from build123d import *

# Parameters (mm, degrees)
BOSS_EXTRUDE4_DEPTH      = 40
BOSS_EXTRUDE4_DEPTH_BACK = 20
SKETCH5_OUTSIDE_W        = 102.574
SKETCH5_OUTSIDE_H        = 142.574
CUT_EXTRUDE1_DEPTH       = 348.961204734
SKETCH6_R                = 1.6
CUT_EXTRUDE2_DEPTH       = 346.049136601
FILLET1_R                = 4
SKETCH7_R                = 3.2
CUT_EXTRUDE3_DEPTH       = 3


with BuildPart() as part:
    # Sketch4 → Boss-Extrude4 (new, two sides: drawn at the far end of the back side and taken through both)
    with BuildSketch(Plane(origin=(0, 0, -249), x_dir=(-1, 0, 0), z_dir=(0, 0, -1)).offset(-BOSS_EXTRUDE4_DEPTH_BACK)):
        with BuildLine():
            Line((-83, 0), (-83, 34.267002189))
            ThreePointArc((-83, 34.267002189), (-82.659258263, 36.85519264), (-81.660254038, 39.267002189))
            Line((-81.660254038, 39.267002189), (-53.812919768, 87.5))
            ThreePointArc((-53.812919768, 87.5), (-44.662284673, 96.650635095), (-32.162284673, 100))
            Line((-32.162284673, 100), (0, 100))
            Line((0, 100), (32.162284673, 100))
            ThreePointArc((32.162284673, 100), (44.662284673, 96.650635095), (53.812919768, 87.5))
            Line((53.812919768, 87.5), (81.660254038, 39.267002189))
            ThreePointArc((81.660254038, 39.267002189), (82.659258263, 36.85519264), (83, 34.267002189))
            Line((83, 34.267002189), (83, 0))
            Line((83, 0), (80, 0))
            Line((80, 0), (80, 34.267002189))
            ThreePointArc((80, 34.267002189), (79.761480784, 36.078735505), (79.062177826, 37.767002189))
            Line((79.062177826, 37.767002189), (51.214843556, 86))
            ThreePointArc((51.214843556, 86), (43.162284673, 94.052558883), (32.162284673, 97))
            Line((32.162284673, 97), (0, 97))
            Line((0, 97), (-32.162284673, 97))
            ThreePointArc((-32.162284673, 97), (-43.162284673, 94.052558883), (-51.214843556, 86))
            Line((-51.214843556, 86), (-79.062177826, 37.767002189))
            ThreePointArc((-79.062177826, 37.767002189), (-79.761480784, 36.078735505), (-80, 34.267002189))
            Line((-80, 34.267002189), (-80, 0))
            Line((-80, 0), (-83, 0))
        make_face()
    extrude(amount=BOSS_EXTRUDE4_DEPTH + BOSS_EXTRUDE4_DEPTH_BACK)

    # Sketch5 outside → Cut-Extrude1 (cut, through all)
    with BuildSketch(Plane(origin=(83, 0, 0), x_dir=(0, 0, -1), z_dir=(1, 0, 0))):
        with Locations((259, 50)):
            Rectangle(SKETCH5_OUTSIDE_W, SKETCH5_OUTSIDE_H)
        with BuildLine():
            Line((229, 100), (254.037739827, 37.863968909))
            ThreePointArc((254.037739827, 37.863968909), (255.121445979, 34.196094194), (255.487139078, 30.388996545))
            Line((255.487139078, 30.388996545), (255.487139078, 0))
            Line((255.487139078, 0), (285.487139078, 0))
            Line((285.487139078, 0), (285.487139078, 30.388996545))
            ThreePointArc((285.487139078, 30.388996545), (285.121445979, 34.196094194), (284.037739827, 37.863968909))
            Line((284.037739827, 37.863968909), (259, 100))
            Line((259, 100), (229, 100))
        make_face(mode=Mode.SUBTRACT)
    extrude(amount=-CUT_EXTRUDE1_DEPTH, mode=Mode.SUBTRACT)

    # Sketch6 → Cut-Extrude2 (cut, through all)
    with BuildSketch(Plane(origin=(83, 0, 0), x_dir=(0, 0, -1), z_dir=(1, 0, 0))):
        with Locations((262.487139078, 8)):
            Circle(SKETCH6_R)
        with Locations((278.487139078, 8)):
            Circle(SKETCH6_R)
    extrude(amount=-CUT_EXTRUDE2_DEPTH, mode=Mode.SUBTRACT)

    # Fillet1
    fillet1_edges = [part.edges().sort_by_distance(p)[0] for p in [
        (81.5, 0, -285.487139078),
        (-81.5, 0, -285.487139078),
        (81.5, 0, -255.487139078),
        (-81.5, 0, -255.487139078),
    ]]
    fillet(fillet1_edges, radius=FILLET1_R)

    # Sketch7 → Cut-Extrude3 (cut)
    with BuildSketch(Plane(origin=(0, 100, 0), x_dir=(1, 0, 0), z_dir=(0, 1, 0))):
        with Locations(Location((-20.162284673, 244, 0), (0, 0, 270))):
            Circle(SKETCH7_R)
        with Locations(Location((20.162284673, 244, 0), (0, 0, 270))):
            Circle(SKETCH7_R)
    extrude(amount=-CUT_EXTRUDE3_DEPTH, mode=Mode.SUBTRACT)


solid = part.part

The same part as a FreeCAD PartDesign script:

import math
import FreeCAD as App
import Part
import Sketcher

V = App.Vector
Q = App.Units.Quantity


def edges_at(feature, points):
    """Names of the edges that pass closest to the given points."""
    edges = feature.Shape.Edges
    near = lambda p: min(range(len(edges)), key=lambda i: edges[i].distToShape(Part.Vertex(*p))[0])
    return sorted({f"Edge{near(p) + 1}" for p in points})


def add_polygon(sketch, points):
    """Adds a closed chain of lines whose ends are joined by coincident constraints."""
    first, n = sketch.GeometryCount, len(points)
    for a, b in zip(points, points[1:] + points[:1]):
        sketch.addGeometry(Part.LineSegment(App.Vector(*a, 0), App.Vector(*b, 0)), False)
    for i in range(n):
        sketch.addConstraint(Sketcher.Constraint("Coincident", first + i, 2, first + (i + 1) % n, 1))

doc = App.newDocument("Part")
body = doc.addObject("PartDesign::Body", "Body")

# Sketch on XY plane
sketch1 = doc.addObject("Sketcher::SketchObject", "Sketch")
body.addObject(sketch1)
sketch1.AttachmentSupport = (doc.XY_Plane, [""])
sketch1.MapMode = "FlatFace"
sketch1.AttachmentOffset = App.Placement(V(0, 0, -249), App.Rotation())
sketch1.addGeometry([
    Part.LineSegment(V(83, 34.3, 0), V(83, 0, 0)),  # 0
    Part.LineSegment(V(83, 0, 0), V(80, 0, 0)),  # 1
    Part.LineSegment(V(80, 0, 0), V(80, 34.3, 0)),  # 2
    Part.ArcOfCircle(Part.Circle(V(73, 34.3, 0), V(0, 0, 1), 7), math.radians(0), math.radians(30)),  # 3
    Part.LineSegment(V(79.1, 37.8, 0), V(51.2, 86, 0)),  # 4
    Part.ArcOfCircle(Part.Circle(V(32.2, 75, 0), V(0, 0, 1), 22), math.radians(30), math.radians(90)),  # 5
    Part.LineSegment(V(32.2, 97, 0), V(-32.2, 97, 0)),  # 6
    Part.ArcOfCircle(Part.Circle(V(-32.2, 75, 0), V(0, 0, 1), 22), math.radians(90), math.radians(150)),  # 7
    Part.LineSegment(V(-51.2, 86, 0), V(-79.1, 37.8, 0)),  # 8
    Part.ArcOfCircle(Part.Circle(V(-73, 34.3, 0), V(0, 0, 1), 7), math.radians(150), math.radians(180)),  # 9
    Part.LineSegment(V(-80, 34.3, 0), V(-80, 0, 0)),  # 10
    Part.LineSegment(V(-80, 0, 0), V(-83, 0, 0)),  # 11
    Part.LineSegment(V(-83, 0, 0), V(-83, 34.3, 0)),  # 12
    Part.ArcOfCircle(Part.Circle(V(-73, 34.3, 0), V(0, 0, 1), 10), math.radians(150), math.radians(180)),  # 13
    Part.LineSegment(V(-81.7, 39.3, 0), V(-53.8, 87.5, 0)),  # 14
    Part.ArcOfCircle(Part.Circle(V(-32.2, 75, 0), V(0, 0, 1), 25), math.radians(90), math.radians(150)),  # 15
    Part.LineSegment(V(-32.2, 100, 0), V(32.2, 100, 0)),  # 16
    Part.ArcOfCircle(Part.Circle(V(32.2, 75, 0), V(0, 0, 1), 25), math.radians(30), math.radians(90)),  # 17
    Part.LineSegment(V(53.8, 87.5, 0), V(81.7, 39.3, 0)),  # 18
    Part.ArcOfCircle(Part.Circle(V(73, 34.3, 0), V(0, 0, 1), 10), math.radians(0), math.radians(30)),  # 19
], False)
sketch1.addConstraint([
    Sketcher.Constraint("Coincident", 0, 2, 1, 1),
    Sketcher.Constraint("Coincident", 1, 2, 2, 1),
    Sketcher.Constraint("Tangent", 2, 2, 3, 1),
    Sketcher.Constraint("Tangent", 3, 2, 4, 1),
    Sketcher.Constraint("Tangent", 4, 2, 5, 1),
    Sketcher.Constraint("Tangent", 5, 2, 6, 1),
    Sketcher.Constraint("Tangent", 6, 2, 7, 1),
    Sketcher.Constraint("Tangent", 7, 2, 8, 1),
    Sketcher.Constraint("Tangent", 8, 2, 9, 1),
    Sketcher.Constraint("Tangent", 9, 2, 10, 1),
    Sketcher.Constraint("Coincident", 10, 2, 11, 1),
    Sketcher.Constraint("Coincident", 11, 2, 12, 1),
    Sketcher.Constraint("Tangent", 12, 2, 13, 2),
    Sketcher.Constraint("Tangent", 13, 1, 14, 1),
    Sketcher.Constraint("Tangent", 14, 2, 15, 2),
    Sketcher.Constraint("Tangent", 15, 1, 16, 1),
    Sketcher.Constraint("Tangent", 16, 2, 17, 2),
    Sketcher.Constraint("Tangent", 17, 1, 18, 1),
    Sketcher.Constraint("Tangent", 18, 2, 19, 2),
    Sketcher.Constraint("Tangent", 19, 1, 0, 1),
    Sketcher.Constraint("Vertical", 0),
    Sketcher.Constraint("Horizontal", 1),
    Sketcher.Constraint("Vertical", 2),
    Sketcher.Constraint("Horizontal", 6),
    Sketcher.Constraint("Vertical", 10),
    Sketcher.Constraint("Horizontal", 11),
    Sketcher.Constraint("Vertical", 12),
    Sketcher.Constraint("Horizontal", 16),
    Sketcher.Constraint("Coincident", 13, 3, 9, 3),
    Sketcher.Constraint("Coincident", 15, 3, 7, 3),
    Sketcher.Constraint("Coincident", 17, 3, 5, 3),
    Sketcher.Constraint("Coincident", 19, 3, 3, 3),
    Sketcher.Constraint("Equal", 5, 7),
    Sketcher.Constraint("Equal", 3, 9),
    Sketcher.Constraint("Equal", 13, 19),
    Sketcher.Constraint("Symmetric", 1, 2, 10, 2, -1, 1),
    Sketcher.Constraint("Symmetric", 4, 2, 7, 2, -2),
    Sketcher.Constraint("PointOnObject", 0, 2, -1),
    Sketcher.Constraint("Parallel", 8, 14),
    Sketcher.Constraint("Radius", 3, Q("7 mm")),
    Sketcher.Constraint("Radius", 5, Q("22 mm")),
    Sketcher.Constraint("Radius", 13, Q("10 mm")),
    Sketcher.Constraint("Angle", 4, Q("120 deg")),
    Sketcher.Constraint("DistanceX", -1, 1, 3, 3, Q("73 mm")),
    Sketcher.Constraint("DistanceY", -1, 1, 5, 3, Q("75 mm")),
    Sketcher.Constraint("DistanceX", 6, 2, 6, 1, Q("64.324569 mm")),
])
pad1 = doc.addObject("PartDesign::Pad", "Pad")
body.addObject(pad1)
pad1.Profile = sketch1
pad1.Type = "TwoLengths"
pad1.Length = 40
pad1.Length2 = 20
pad1.Reversed = True

# Sketch on YZ plane
sketch2 = doc.addObject("Sketcher::SketchObject", "Sketch001")
body.addObject(sketch2)
sketch2.AttachmentSupport = (doc.YZ_Plane, [""])
sketch2.MapMode = "FlatFace"
sketch2.AttachmentOffset = App.Placement(V(0, 0, 83), App.Rotation())
add_polygon(sketch2, [(121, -208), (-21, -208), (-21, -310), (121, -310)])  # lines 0-3
sketch2.addGeometry(Part.LineSegment(V(38, -254, 0), V(100, -229, 0)), False)  # 4
sketch2.addGeometry(Part.LineSegment(V(100, -229, 0), V(100, -259, 0)), False)  # 5
sketch2.addGeometry(Part.LineSegment(V(100, -259, 0), V(38, -284, 0)), False)  # 6
sketch2.addGeometry(Part.ArcOfCircle(Part.Circle(V(30, -265, 0), V(0, 0, 1), 20), math.radians(-90), math.radians(-68)), False)  # 7
sketch2.addGeometry(Part.LineSegment(V(30, -285, 0), V(0, -285, 0)), False)  # 8
sketch2.addGeometry(Part.LineSegment(V(0, -285, 0), V(0, -255, 0)), False)  # 9
sketch2.addGeometry(Part.LineSegment(V(0, -255, 0), V(30, -255, 0)), False)  # 10
sketch2.addGeometry(Part.ArcOfCircle(Part.Circle(V(30, -235, 0), V(0, 0, 1), 20), math.radians(-90), math.radians(-68)), False)  # 11
sketch2.addConstraint([
    Sketcher.Constraint("Coincident", 4, 2, 5, 1),
    Sketcher.Constraint("Coincident", 5, 2, 6, 1),
    Sketcher.Constraint("Tangent", 6, 2, 7, 2),
    Sketcher.Constraint("Tangent", 7, 1, 8, 1),
    Sketcher.Constraint("Coincident", 8, 2, 9, 1),
    Sketcher.Constraint("Coincident", 9, 2, 10, 1),
    Sketcher.Constraint("Tangent", 10, 2, 11, 1),
    Sketcher.Constraint("Tangent", 11, 2, 4, 1),
    Sketcher.Constraint("Horizontal", 0),
    Sketcher.Constraint("Vertical", 1),
    Sketcher.Constraint("Horizontal", 2),
    Sketcher.Constraint("Vertical", 3),
    Sketcher.Constraint("Vertical", 5),
    Sketcher.Constraint("Horizontal", 8),
    Sketcher.Constraint("Vertical", 9),
    Sketcher.Constraint("Horizontal", 10),
    Sketcher.Constraint("Equal", 7, 11),
    Sketcher.Constraint("PointOnObject", 8, 2, -2),
    Sketcher.Constraint("Parallel", 4, 6),
    Sketcher.Constraint("Vertical", 7, 3, 11, 3),
    Sketcher.Constraint("Radius", 7, Q("20 mm")),
    Sketcher.Constraint("DistanceY", 5, 2, 5, 1, Q("30 mm")),
    Sketcher.Constraint("DistanceX", -1, 1, 4, 2, Q("100 mm")),
    Sketcher.Constraint("DistanceY", 4, 2, -1, 1, Q("229 mm")),
    Sketcher.Constraint("DistanceX", 0, 2, 0, 1, Q("142.574 mm")),
    Sketcher.Constraint("DistanceY", 1, 2, 1, 1, Q("102.574 mm")),
    Sketcher.Constraint("DistanceX", 0, 2, -1, 1, Q("21.287 mm")),
    Sketcher.Constraint("DistanceY", 0, 2, -1, 1, Q("207.713 mm")),
    Sketcher.Constraint("DistanceY", 6, 2, 7, 3, Q("18.550601 mm")),
    Sketcher.Constraint("DistanceX", 8, 2, 8, 1, Q("30.388997 mm")),
])
pocket1 = doc.addObject("PartDesign::Pocket", "Pocket")
body.addObject(pocket1)
pocket1.Profile = sketch2
pocket1.Type = "ThroughAll"

# Sketch on YZ plane
sketch3 = doc.addObject("Sketcher::SketchObject", "Sketch002")
body.addObject(sketch3)
sketch3.AttachmentSupport = (doc.YZ_Plane, [""])
sketch3.MapMode = "FlatFace"
sketch3.AttachmentOffset = App.Placement(V(0, 0, 83), App.Rotation())
sketch3.addGeometry([
    Part.Circle(V(8, -262.5, 0), V(0, 0, 1), 1.6),
    Part.Circle(V(8, -278.5, 0), V(0, 0, 1), 1.6),
], False)
sketch3.addConstraint([
    Sketcher.Constraint("Equal", 0, 1),
    Sketcher.Constraint("Vertical", 0, 3, 1, 3),
    Sketcher.Constraint("Diameter", 0, Q("3.2 mm")),
    Sketcher.Constraint("DistanceX", -1, 1, 0, 3, Q("8 mm")),
    Sketcher.Constraint("DistanceY", 1, 3, 0, 3, Q("16 mm")),
    Sketcher.Constraint("DistanceY", 0, 3, -1, 1, Q("262.487139 mm")),
])
pocket2 = doc.addObject("PartDesign::Pocket", "Pocket001")
body.addObject(pocket2)
pocket2.Profile = sketch3
pocket2.Type = "ThroughAll"
doc.recompute()

fillet = doc.addObject("PartDesign::Fillet", "Fillet")
body.addObject(fillet)
fillet.Base = (pocket2, edges_at(pocket2, [
    (81.5, 0, -285.487),
    (-81.5, 0, -285.487),
    (81.5, 0, -255.487),
    (-81.5, 0, -255.487),
]))
fillet.Radius = 4

# Sketch on XZ plane
sketch4 = doc.addObject("Sketcher::SketchObject", "Sketch003")
body.addObject(sketch4)
sketch4.AttachmentSupport = (doc.XZ_Plane, [""])
sketch4.MapMode = "FlatFace"
sketch4.AttachmentOffset = App.Placement(V(0, 0, -100), App.Rotation())
sketch4.addGeometry([
    Part.Circle(V(-20.2, -244, 0), V(0, 0, 1), 3.2),
    Part.Circle(V(20.2, -244, 0), V(0, 0, 1), 3.2),
], False)
sketch4.addConstraint([
    Sketcher.Constraint("Equal", 0, 1),
    Sketcher.Constraint("Symmetric", 0, 3, 1, 3, -2),
    Sketcher.Constraint("Diameter", 0, Q("6.4 mm")),
    Sketcher.Constraint("DistanceY", 0, 3, -1, 1, Q("244 mm")),
    Sketcher.Constraint("DistanceX", 0, 3, 1, 3, Q("40.324569 mm")),
])
pocket3 = doc.addObject("PartDesign::Pocket", "Pocket002")
body.addObject(pocket3)
pocket3.Profile = sketch4
pocket3.Length = 3
pocket3.Reversed = True

doc.recompute()
